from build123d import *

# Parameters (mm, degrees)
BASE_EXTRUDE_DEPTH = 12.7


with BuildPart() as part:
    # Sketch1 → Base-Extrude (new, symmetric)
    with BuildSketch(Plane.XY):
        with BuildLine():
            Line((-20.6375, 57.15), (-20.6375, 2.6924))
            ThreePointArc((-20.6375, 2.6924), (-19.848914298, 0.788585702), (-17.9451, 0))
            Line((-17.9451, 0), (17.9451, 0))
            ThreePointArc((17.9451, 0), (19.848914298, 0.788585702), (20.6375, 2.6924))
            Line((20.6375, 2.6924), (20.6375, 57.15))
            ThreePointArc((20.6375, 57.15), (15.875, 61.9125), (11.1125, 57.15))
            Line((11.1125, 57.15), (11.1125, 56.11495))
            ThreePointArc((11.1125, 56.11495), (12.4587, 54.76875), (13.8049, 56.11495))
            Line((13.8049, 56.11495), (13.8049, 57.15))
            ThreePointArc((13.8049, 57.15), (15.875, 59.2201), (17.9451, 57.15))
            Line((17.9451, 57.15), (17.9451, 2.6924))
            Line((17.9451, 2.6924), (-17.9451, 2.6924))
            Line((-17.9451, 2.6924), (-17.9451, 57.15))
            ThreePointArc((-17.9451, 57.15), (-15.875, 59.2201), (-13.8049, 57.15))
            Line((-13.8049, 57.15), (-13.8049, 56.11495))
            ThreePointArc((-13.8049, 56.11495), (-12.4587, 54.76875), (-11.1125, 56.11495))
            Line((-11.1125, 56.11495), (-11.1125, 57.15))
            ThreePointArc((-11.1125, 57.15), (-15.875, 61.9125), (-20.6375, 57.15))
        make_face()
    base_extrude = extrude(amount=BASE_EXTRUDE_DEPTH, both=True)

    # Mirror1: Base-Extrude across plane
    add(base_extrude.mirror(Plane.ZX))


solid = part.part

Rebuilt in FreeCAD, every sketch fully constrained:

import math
import FreeCAD as App
import Part
import Sketcher
from FreeCAD import Vector
Q = App.Units.Quantity

doc = App.newDocument("Part")
params = doc.addObject("Spreadsheet::Sheet", "Params")
for row, (alias, value) in enumerate([
    ("sketch1_radius", "0.106 in"),
    ("sketch1_radius2", "0.1875 in"),
    ("sketch1_width", "1.413 in"),
    ("sketch1_height", "2.144 in"),
    ("pad1_length", "1 in"),
], start=1):
    params.set(f"A{row}", alias)
    params.set(f"B{row}", "=" + value)
    params.setAlias(f"B{row}", alias)

body = doc.addObject("PartDesign::Body", "Body")

# Sketch on XY plane
sketch1 = body.newObject("Sketcher::SketchObject", "Sketch")
sketch1.AttachmentSupport = (doc.getObject("XY_Plane"), [""])
sketch1.MapMode = "FlatFace"
sketch1.addGeometry(Part.LineSegment(Vector(-20.6, 57.1, 0), Vector(-20.6, 2.7, 0)), False)
sketch1.addGeometry(Part.ArcOfCircle(Part.Circle(Vector(-17.9, 2.7, 0), Vector(0, 0, 1), 2.7), math.radians(180), math.radians(270)), False)
sketch1.addGeometry(Part.LineSegment(Vector(-17.9, 0, 0), Vector(17.9, 0, 0)), False)
sketch1.addGeometry(Part.ArcOfCircle(Part.Circle(Vector(17.9, 2.7, 0), Vector(0, 0, 1), 2.7), math.radians(-90), math.radians(0)), False)
sketch1.addGeometry(Part.LineSegment(Vector(20.6, 2.7, 0), Vector(20.6, 57.1, 0)), False)
sketch1.addGeometry(Part.ArcOfCircle(Part.Circle(Vector(15.9, 57.1, 0), Vector(0, 0, 1), 4.8), math.radians(0), math.radians(180)), False)
sketch1.addGeometry(Part.LineSegment(Vector(11.1, 57.1, 0), Vector(11.1, 56.1, 0)), False)
sketch1.addGeometry(Part.ArcOfCircle(Part.Circle(Vector(12.5, 56.1, 0), Vector(0, 0, 1), 1.3), math.radians(180), math.radians(360)), False)
sketch1.addGeometry(Part.LineSegment(Vector(13.8, 56.1, 0), Vector(13.8, 57.1, 0)), False)
sketch1.addGeometry(Part.ArcOfCircle(Part.Circle(Vector(15.9, 57.1, 0), Vector(0, 0, 1), 2.1), math.radians(0), math.radians(180)), False)
sketch1.addGeometry(Part.LineSegment(Vector(17.9, 57.1, 0), Vector(17.9, 2.7, 0)), False)
sketch1.addGeometry(Part.LineSegment(Vector(17.9, 2.7, 0), Vector(-17.9, 2.7, 0)), False)
sketch1.addGeometry(Part.LineSegment(Vector(-17.9, 2.7, 0), Vector(-17.9, 57.1, 0)), False)
sketch1.addGeometry(Part.ArcOfCircle(Part.Circle(Vector(-15.9, 57.1, 0), Vector(0, 0, 1), 2.1), math.radians(0), math.radians(180)), False)
sketch1.addGeometry(Part.LineSegment(Vector(-13.8, 57.1, 0), Vector(-13.8, 56.1, 0)), False)
sketch1.addGeometry(Part.ArcOfCircle(Part.Circle(Vector(-12.5, 56.1, 0), Vector(0, 0, 1), 1.3), math.radians(180), math.radians(360)), False)
sketch1.addGeometry(Part.LineSegment(Vector(-11.1, 56.1, 0), Vector(-11.1, 57.1, 0)), False)
sketch1.addGeometry(Part.ArcOfCircle(Part.Circle(Vector(-15.9, 57.1, 0), Vector(0, 0, 1), 4.8), math.radians(0), math.radians(180)), False)
sketch1.addConstraint(Sketcher.Constraint("Tangent", 0, 2, 1, 1))
sketch1.addConstraint(Sketcher.Constraint("Tangent", 1, 2, 2, 1))
sketch1.addConstraint(Sketcher.Constraint("Tangent", 2, 2, 3, 1))
sketch1.addConstraint(Sketcher.Constraint("Tangent", 3, 2, 4, 1))
sketch1.addConstraint(Sketcher.Constraint("Tangent", 4, 2, 5, 1))
sketch1.addConstraint(Sketcher.Constraint("Tangent", 5, 2, 6, 1))
sketch1.addConstraint(Sketcher.Constraint("Tangent", 6, 2, 7, 1))
sketch1.addConstraint(Sketcher.Constraint("Tangent", 7, 2, 8, 1))
sketch1.addConstraint(Sketcher.Constraint("Tangent", 8, 2, 9, 2))
sketch1.addConstraint(Sketcher.Constraint("Tangent", 9, 1, 10, 1))
sketch1.addConstraint(Sketcher.Constraint("Coincident", 10, 2, 11, 1))
sketch1.addConstraint(Sketcher.Constraint("Coincident", 11, 2, 12, 1))
sketch1.addConstraint(Sketcher.Constraint("Tangent", 12, 2, 13, 2))
sketch1.addConstraint(Sketcher.Constraint("Tangent", 13, 1, 14, 1))
sketch1.addConstraint(Sketcher.Constraint("Tangent", 14, 2, 15, 1))
sketch1.addConstraint(Sketcher.Constraint("Tangent", 15, 2, 16, 1))
sketch1.addConstraint(Sketcher.Constraint("Tangent", 16, 2, 17, 1))
sketch1.addConstraint(Sketcher.Constraint("Tangent", 17, 2, 0, 1))
sketch1.addConstraint(Sketcher.Constraint("Vertical", 0))
sketch1.addConstraint(Sketcher.Constraint("Horizontal", 2))
sketch1.addConstraint(Sketcher.Constraint("Vertical", 4))
sketch1.addConstraint(Sketcher.Constraint("Vertical", 6))
sketch1.addConstraint(Sketcher.Constraint("Vertical", 8))
sketch1.addConstraint(Sketcher.Constraint("Vertical", 10))
sketch1.addConstraint(Sketcher.Constraint("Horizontal", 11))
sketch1.addConstraint(Sketcher.Constraint("Vertical", 12))
sketch1.addConstraint(Sketcher.Constraint("Vertical", 14))
sketch1.addConstraint(Sketcher.Constraint("Vertical", 16))
sketch1.addConstraint(Sketcher.Constraint("Coincident", 9, 3, 5, 3))
sketch1.addConstraint(Sketcher.Constraint("Coincident", 17, 3, 13, 3))
sketch1.addConstraint(Sketcher.Constraint("Coincident", 10, 2, 3, 3))
sketch1.addConstraint(Sketcher.Constraint("Coincident", 11, 2, 1, 3))
sketch1.addConstraint(Sketcher.Constraint("Equal", 9, 13))
sketch1.addConstraint(Sketcher.Constraint("Symmetric", 1, 2, 2, 2, -1, 1))
sketch1.addConstraint(Sketcher.Constraint("Horizontal", 9, 3, 13, 3))
sketch1.addConstraint(Sketcher.Constraint("Horizontal", 7, 3, 15, 3))
sketch1.addConstraint(Sketcher.Constraint("Radius", 1, Q("0.106 in")))
sketch1.addConstraint(Sketcher.Constraint("Radius", 5, Q("0.1875 in")))
sketch1.addConstraint(Sketcher.Constraint("DistanceX", 2, 1, 2, 2, Q("1.413 in")))
sketch1.addConstraint(Sketcher.Constraint("DistanceY", 0, 2, 0, 1, Q("2.144 in")))
sketch1.addConstraint(Sketcher.Constraint("DistanceY", 6, 2, 6, 1, Q("1.03505 mm")))
sketch1.setExpression("Constraints[36]", "Params.sketch1_radius")
sketch1.setExpression("Constraints[37]", "Params.sketch1_radius2")
sketch1.setExpression("Constraints[38]", "Params.sketch1_width")
sketch1.setExpression("Constraints[39]", "Params.sketch1_height")
pad1 = body.newObject("PartDesign::Pad", "Pad")
pad1.Profile = sketch1
pad1.setExpression("Length", "Params.pad1_length")
pad1.Midplane = True
doc.recompute()

mirrored = body.newObject("PartDesign::Mirrored", "Mirrored")
mirrored.Originals = [pad1]
mirrored.MirrorPlane = (doc.getObject("XZ_Plane"), [""])
body.Tip = mirrored

doc.recompute()
